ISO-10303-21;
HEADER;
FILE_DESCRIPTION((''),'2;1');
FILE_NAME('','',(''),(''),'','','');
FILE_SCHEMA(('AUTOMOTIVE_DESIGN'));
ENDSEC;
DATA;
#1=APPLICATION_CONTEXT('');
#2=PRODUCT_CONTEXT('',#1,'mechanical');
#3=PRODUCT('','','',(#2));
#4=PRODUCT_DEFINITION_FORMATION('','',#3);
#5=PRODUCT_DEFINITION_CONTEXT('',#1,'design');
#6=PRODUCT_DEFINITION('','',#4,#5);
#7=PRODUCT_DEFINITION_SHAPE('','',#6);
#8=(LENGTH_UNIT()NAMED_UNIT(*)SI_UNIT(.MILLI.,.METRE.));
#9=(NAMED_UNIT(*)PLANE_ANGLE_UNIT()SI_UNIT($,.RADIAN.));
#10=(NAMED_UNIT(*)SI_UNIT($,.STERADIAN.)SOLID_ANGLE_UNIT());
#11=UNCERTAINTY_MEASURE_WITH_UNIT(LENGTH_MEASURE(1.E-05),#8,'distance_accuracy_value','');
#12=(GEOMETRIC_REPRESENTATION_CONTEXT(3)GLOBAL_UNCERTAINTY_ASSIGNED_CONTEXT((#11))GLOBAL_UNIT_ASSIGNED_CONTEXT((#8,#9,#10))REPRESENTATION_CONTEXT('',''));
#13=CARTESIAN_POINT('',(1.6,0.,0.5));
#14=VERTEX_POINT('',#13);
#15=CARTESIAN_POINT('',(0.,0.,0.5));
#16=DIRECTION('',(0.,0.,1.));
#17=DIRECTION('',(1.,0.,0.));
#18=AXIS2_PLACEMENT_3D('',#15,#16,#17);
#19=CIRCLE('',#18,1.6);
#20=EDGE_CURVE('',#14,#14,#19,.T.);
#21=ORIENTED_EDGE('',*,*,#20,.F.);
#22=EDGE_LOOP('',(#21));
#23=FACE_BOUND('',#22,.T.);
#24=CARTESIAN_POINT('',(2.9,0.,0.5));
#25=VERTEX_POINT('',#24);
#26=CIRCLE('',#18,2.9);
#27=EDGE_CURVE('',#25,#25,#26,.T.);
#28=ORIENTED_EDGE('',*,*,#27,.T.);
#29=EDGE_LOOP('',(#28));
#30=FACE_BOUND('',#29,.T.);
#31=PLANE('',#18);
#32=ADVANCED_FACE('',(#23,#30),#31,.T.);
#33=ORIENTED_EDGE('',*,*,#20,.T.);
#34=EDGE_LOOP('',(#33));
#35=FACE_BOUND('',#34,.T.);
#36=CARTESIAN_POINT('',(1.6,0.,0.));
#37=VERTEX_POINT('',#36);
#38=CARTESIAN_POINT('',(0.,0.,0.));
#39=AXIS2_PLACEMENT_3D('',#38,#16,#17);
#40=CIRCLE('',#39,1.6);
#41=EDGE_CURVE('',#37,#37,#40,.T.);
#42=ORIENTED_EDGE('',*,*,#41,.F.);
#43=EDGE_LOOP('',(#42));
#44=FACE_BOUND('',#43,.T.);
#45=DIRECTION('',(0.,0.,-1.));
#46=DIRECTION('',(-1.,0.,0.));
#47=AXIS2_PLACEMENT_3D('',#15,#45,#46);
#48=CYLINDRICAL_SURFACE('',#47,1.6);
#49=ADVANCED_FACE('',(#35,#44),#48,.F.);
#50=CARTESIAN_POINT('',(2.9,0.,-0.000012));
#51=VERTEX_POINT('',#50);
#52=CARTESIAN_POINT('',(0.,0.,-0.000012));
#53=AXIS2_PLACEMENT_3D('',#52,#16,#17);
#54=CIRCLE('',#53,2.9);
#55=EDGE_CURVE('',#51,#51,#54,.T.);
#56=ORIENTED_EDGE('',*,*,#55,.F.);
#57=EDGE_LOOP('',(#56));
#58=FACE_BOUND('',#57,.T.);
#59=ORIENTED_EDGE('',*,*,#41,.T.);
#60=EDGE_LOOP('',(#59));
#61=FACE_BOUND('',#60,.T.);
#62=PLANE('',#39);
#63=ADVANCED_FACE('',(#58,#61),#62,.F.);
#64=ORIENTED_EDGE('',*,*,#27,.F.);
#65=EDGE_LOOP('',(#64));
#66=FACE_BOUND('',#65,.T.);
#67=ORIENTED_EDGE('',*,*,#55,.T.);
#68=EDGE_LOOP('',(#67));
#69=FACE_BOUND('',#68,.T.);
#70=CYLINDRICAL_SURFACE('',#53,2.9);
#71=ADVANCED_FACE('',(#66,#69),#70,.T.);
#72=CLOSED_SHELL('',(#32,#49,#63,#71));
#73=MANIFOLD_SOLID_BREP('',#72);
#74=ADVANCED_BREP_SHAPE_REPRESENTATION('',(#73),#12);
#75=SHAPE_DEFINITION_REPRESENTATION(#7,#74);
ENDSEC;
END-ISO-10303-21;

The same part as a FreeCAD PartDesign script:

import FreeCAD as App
import Part
import Sketcher

V = App.Vector

doc = App.newDocument("Part")
body = doc.addObject("PartDesign::Body", "Body")

sketch1 = body.newObject("Sketcher::SketchObject", "Sketch")
sketch1.AttachmentSupport = (doc.getObject("XY_Plane"), [""])
sketch1.MapMode = "FlatFace"
sketch1.addGeometry([
    Part.Circle(V(0, 0, 0), V(0, 0, 1), 3.5),
    Part.Circle(V(0, 0, 0), V(0, 0, 1), 1.6),
], False)
sketch1.addConstraint([
    Sketcher.Constraint("Coincident", 0, 3, -1, 1),
    Sketcher.Constraint("Coincident", 1, 3, -1, 1),
    Sketcher.Constraint("Diameter", 0, 7.0),
    Sketcher.Constraint("Diameter", 1, 3.2),
])
pad1 = body.newObject("PartDesign::Pad", "Pad")
pad1.Profile = sketch1
pad1.Length = 0.5

sketch2 = body.newObject("Sketcher::SketchObject", "Sketch001")
sketch2.AttachmentSupport = (doc.getObject("XY_Plane"), [""])
sketch2.MapMode = "FlatFace"
sketch2.addGeometry([
    Part.Circle(V(0, 0, 0), V(0, 0, 1), 3.8),
    Part.Circle(V(0, 0, 0), V(0, 0, 1), 2.9),
], False)
sketch2.addConstraint([
    Sketcher.Constraint("Coincident", 0, 3, -1, 1),
    Sketcher.Constraint("Coincident", 1, 3, -1, 1),
    Sketcher.Constraint("Diameter", 0, 7.6),
    Sketcher.Constraint("Diameter", 1, 5.8),
])
pocket1 = body.newObject("PartDesign::Pocket", "Pocket")
pocket1.Profile = sketch2
pocket1.Type = "ThroughAll"
pocket1.Midplane = True

doc.recompute()
